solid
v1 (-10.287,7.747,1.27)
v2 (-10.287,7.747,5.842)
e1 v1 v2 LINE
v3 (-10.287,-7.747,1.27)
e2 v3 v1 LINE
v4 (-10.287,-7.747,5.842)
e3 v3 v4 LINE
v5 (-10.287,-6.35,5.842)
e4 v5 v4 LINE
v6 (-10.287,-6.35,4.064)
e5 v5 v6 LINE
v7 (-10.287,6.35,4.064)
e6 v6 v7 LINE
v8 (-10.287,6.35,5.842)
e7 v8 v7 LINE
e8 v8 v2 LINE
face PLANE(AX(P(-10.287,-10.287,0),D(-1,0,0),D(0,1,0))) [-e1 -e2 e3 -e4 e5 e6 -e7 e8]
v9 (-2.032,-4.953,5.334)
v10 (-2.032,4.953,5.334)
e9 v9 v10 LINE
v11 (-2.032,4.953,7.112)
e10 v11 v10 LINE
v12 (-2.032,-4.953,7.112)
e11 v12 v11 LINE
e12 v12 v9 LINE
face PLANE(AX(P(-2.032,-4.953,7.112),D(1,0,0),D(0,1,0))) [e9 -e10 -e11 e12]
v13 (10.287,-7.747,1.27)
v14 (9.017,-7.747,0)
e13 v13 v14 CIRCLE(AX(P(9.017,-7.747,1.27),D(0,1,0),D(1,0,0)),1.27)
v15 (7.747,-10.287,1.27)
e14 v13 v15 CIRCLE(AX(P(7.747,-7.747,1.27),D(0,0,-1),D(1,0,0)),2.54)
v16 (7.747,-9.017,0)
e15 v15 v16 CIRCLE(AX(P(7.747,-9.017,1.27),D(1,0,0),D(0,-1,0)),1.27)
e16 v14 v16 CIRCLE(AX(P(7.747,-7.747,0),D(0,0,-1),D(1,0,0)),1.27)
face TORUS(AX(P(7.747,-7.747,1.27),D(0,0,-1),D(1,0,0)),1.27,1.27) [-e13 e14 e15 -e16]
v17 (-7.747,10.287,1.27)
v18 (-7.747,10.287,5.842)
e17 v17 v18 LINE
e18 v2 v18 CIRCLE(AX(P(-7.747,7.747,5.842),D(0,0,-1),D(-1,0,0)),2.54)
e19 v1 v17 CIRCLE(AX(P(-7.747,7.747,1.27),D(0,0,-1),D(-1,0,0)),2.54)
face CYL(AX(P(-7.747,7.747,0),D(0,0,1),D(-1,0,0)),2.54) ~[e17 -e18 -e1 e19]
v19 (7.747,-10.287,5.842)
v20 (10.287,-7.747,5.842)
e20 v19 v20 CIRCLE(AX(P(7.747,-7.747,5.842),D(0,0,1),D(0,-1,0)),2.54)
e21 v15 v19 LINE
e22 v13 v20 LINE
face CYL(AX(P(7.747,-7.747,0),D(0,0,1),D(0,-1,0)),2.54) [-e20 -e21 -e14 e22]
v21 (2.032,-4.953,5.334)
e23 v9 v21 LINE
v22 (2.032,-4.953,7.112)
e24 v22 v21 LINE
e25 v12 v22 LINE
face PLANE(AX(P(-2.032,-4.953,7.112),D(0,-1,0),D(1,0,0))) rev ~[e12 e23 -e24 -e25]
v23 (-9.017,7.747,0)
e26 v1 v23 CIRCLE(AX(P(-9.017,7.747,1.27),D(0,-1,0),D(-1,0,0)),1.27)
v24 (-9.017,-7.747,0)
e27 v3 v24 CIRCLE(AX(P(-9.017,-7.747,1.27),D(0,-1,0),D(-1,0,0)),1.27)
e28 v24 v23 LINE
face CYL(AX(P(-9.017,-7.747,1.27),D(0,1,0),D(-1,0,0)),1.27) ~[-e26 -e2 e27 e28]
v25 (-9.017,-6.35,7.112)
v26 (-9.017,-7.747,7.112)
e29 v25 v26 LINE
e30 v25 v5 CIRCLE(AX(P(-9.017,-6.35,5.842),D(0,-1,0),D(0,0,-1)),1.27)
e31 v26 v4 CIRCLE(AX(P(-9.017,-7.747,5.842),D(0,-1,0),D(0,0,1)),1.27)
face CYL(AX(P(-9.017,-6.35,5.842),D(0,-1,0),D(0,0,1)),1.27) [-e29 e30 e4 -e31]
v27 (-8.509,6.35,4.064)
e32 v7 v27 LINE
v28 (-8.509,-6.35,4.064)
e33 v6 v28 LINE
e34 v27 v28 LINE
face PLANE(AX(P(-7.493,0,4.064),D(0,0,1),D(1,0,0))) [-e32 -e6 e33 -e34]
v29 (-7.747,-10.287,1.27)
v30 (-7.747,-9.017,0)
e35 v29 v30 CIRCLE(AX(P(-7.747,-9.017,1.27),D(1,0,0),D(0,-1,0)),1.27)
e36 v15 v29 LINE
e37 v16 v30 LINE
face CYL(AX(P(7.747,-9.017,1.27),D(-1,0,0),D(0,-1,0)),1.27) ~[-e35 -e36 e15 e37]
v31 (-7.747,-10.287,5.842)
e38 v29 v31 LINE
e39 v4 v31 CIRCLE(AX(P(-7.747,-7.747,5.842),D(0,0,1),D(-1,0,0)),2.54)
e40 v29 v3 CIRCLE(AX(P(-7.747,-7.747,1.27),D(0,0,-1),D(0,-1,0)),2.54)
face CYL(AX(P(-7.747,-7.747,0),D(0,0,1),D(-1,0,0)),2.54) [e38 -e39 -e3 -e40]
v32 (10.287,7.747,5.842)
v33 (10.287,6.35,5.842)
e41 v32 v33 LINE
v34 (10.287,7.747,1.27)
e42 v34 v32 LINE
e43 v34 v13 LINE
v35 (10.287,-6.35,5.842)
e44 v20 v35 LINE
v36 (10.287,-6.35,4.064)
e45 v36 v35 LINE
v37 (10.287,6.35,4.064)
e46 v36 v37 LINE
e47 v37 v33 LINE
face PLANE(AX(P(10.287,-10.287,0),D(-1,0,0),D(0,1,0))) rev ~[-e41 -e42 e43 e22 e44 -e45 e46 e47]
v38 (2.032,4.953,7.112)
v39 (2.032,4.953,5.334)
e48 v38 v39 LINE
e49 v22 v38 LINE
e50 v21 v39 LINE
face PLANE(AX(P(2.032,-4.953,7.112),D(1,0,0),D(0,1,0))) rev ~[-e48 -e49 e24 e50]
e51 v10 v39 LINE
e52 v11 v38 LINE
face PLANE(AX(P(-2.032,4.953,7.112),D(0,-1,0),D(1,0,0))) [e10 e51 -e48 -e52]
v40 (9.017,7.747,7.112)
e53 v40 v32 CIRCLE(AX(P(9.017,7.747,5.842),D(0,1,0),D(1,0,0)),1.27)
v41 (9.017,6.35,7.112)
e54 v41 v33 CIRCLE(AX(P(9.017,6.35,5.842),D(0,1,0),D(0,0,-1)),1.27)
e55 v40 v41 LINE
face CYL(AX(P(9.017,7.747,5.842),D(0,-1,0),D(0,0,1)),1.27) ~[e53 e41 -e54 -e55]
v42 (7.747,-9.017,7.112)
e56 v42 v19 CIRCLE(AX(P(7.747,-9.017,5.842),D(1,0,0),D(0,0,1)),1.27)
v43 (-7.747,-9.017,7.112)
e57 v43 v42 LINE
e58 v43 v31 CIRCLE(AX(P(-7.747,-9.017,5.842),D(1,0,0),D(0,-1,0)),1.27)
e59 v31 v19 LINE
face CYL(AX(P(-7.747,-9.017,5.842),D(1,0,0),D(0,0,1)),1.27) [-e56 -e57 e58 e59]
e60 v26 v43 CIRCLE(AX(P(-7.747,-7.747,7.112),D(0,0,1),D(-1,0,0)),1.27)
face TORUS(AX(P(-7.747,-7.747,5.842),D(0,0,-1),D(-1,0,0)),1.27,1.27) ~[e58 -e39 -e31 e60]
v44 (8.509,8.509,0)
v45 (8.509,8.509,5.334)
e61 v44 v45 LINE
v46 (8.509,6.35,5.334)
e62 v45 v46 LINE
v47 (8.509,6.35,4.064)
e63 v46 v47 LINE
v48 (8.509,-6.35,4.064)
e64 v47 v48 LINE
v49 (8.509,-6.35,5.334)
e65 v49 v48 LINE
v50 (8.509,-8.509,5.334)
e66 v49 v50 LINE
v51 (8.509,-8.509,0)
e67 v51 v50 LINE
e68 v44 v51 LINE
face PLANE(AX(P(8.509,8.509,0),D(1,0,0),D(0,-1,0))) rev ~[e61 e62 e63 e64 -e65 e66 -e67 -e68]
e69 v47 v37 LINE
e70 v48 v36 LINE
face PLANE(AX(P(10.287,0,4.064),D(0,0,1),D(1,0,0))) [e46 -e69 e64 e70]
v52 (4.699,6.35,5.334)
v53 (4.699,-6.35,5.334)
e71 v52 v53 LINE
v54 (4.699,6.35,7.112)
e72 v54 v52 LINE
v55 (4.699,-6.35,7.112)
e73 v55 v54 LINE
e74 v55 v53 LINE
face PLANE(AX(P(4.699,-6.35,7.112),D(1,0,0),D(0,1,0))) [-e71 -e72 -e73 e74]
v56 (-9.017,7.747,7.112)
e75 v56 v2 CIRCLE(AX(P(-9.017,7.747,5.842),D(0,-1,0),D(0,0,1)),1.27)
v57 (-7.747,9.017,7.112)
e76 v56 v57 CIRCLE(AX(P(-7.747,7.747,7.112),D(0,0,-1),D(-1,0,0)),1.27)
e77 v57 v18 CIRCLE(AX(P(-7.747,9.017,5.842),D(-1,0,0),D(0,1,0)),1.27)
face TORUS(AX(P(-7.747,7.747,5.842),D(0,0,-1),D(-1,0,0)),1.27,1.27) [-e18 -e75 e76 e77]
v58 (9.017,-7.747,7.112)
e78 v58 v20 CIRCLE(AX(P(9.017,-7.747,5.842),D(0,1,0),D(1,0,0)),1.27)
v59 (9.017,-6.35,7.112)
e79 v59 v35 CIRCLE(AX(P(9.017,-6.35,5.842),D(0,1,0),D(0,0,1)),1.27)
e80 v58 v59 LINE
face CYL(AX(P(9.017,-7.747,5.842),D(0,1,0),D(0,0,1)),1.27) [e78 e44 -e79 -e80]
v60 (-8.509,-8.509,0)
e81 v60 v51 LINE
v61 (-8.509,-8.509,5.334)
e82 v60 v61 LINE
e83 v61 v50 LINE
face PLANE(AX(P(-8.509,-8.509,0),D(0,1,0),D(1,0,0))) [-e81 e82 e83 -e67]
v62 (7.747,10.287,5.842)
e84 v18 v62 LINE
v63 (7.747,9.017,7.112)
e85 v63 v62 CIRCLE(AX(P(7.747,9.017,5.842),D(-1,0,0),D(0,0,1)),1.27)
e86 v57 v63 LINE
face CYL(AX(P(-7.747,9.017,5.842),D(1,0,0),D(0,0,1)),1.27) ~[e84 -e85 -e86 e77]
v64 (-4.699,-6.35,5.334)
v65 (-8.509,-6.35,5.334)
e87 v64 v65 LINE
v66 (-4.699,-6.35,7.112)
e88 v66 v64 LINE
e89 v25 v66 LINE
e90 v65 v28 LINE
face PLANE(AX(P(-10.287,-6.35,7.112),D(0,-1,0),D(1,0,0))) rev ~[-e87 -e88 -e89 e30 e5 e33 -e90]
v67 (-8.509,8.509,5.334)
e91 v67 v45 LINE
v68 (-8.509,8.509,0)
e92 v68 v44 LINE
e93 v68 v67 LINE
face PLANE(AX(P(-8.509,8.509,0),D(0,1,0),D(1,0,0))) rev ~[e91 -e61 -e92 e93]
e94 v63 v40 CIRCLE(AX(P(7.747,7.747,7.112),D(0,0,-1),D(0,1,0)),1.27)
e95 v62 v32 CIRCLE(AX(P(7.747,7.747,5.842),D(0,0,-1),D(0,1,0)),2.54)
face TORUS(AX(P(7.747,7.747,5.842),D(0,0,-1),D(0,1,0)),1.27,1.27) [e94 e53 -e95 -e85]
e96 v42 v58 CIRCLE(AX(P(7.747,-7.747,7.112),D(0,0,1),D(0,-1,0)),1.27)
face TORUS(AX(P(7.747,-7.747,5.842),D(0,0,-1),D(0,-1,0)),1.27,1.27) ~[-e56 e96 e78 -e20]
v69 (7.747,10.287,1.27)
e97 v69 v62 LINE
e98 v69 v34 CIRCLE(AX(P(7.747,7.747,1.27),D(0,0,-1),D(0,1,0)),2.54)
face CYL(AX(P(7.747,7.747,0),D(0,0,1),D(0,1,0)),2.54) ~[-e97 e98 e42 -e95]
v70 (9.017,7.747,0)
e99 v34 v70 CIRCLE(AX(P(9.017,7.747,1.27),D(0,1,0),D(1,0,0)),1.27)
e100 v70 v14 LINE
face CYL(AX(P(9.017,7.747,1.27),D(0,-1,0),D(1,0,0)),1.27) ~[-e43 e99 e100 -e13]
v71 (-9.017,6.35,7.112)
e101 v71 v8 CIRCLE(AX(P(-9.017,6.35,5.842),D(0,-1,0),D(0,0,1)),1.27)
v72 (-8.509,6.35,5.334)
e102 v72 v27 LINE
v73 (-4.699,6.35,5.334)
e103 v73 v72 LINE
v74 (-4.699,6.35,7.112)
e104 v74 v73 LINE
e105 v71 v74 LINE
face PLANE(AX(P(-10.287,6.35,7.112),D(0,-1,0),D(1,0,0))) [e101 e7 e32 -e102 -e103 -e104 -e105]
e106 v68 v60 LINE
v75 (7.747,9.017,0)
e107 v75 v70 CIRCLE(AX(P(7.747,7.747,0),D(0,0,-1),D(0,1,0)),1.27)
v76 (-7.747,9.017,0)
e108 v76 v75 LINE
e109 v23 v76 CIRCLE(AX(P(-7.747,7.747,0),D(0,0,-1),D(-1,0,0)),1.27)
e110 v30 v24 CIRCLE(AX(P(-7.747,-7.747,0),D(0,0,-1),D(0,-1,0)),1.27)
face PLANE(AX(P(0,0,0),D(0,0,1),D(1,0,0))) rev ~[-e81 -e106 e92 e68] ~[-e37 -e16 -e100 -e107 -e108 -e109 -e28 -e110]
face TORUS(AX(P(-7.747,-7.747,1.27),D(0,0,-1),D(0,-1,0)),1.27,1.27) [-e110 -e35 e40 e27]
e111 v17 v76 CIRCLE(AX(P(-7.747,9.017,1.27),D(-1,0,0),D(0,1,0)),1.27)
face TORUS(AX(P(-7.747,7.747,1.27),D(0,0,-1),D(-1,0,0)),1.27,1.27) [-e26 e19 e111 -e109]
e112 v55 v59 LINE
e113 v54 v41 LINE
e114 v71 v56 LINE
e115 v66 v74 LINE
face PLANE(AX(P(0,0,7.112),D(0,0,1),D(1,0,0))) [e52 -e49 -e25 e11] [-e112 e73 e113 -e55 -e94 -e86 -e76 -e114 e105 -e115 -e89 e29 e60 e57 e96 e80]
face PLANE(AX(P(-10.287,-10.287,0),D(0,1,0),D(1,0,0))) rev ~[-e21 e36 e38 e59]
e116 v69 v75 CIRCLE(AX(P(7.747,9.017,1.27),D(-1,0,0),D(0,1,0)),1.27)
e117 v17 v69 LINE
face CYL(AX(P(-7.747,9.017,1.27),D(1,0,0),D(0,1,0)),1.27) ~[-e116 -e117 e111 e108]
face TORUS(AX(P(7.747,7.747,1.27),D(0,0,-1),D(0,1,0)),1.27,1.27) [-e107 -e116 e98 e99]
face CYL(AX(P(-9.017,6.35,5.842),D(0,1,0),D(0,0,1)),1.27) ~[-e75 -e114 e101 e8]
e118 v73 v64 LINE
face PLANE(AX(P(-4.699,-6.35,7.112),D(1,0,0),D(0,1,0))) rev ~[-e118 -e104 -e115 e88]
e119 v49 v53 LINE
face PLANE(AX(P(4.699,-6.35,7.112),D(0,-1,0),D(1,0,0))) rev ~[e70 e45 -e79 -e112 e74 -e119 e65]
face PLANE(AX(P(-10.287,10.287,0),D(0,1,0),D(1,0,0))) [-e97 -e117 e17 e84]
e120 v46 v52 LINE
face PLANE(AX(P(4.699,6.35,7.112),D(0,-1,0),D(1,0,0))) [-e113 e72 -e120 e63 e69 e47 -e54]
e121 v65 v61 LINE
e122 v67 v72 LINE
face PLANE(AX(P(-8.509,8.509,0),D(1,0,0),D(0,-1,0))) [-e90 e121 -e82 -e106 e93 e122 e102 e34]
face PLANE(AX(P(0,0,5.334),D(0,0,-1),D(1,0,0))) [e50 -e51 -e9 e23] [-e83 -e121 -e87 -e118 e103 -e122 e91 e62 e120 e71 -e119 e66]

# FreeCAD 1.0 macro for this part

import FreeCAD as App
import Part
import Sketcher
Q = App.Units.Quantity


def edges_at(feature, points):
    """Names of the edges that pass closest to the given points."""
    edges = feature.Shape.Edges
    near = lambda p: min(range(len(edges)), key=lambda i: edges[i].distToShape(Part.Vertex(*p))[0])
    return sorted({f"Edge{near(p) + 1}" for p in points})

doc = App.newDocument("Part")
body = doc.addObject("PartDesign::Body", "Body")

# Sketch on XY plane
sketch1 = doc.addObject("Sketcher::SketchObject", "Sketch")
body.addObject(sketch1)
sketch1.AttachmentSupport = (doc.XY_Plane, [""])
sketch1.MapMode = "FlatFace"
sketch1.addGeometry(Part.LineSegment(App.Vector(-10, 10, 0), App.Vector(-10, -10, 0)), False)
sketch1.addGeometry(Part.LineSegment(App.Vector(-10, -10, 0), App.Vector(10, -10, 0)), False)
sketch1.addGeometry(Part.LineSegment(App.Vector(10, -10, 0), App.Vector(10, 10, 0)), False)
sketch1.addGeometry(Part.LineSegment(App.Vector(10, 10, 0), App.Vector(-10, 10, 0)), False)
sketch1.addConstraint(Sketcher.Constraint("Coincident", 0, 2, 1, 1))
sketch1.addConstraint(Sketcher.Constraint("Coincident", 1, 2, 2, 1))
sketch1.addConstraint(Sketcher.Constraint("Coincident", 2, 2, 3, 1))
sketch1.addConstraint(Sketcher.Constraint("Coincident", 3, 2, 0, 1))
sketch1.addConstraint(Sketcher.Constraint("Vertical", 0))
sketch1.addConstraint(Sketcher.Constraint("Horizontal", 1))
sketch1.addConstraint(Sketcher.Constraint("Vertical", 2))
sketch1.addConstraint(Sketcher.Constraint("Horizontal", 3))
sketch1.addConstraint(Sketcher.Constraint("Symmetric", 0, 2, 2, 2, -1, 1))
sketch1.addConstraint(Sketcher.Constraint("Equal", 3, 0))
sketch1.addConstraint(Sketcher.Constraint("DistanceX", 1, 1, 1, 2, Q("0.81 in")))
pad1 = doc.addObject("PartDesign::Pad", "Pad")
body.addObject(pad1)
pad1.Profile = sketch1
pad1.Length = Q("0.28 in")

# Sketch on XY plane
sketch2 = doc.addObject("Sketcher::SketchObject", "Sketch001")
body.addObject(sketch2)
sketch2.AttachmentSupport = (doc.XY_Plane, [""])
sketch2.MapMode = "FlatFace"
sketch2.addGeometry(Part.LineSegment(App.Vector(-9, -9, 0), App.Vector(-9, 9, 0)), False)
sketch2.addGeometry(Part.LineSegment(App.Vector(-9, 9, 0), App.Vector(9, 9, 0)), False)
sketch2.addGeometry(Part.LineSegment(App.Vector(9, 9, 0), App.Vector(9, -9, 0)), False)
sketch2.addGeometry(Part.LineSegment(App.Vector(9, -9, 0), App.Vector(-9, -9, 0)), False)
sketch2.addConstraint(Sketcher.Constraint("Coincident", 0, 2, 1, 1))
sketch2.addConstraint(Sketcher.Constraint("Coincident", 1, 2, 2, 1))
sketch2.addConstraint(Sketcher.Constraint("Coincident", 2, 2, 3, 1))
sketch2.addConstraint(Sketcher.Constraint("Coincident", 3, 2, 0, 1))
sketch2.addConstraint(Sketcher.Constraint("Vertical", 0))
sketch2.addConstraint(Sketcher.Constraint("Horizontal", 1))
sketch2.addConstraint(Sketcher.Constraint("Vertical", 2))
sketch2.addConstraint(Sketcher.Constraint("Horizontal", 3))
sketch2.addConstraint(Sketcher.Constraint("Symmetric", 0, 2, 2, 2, -1, 1))
sketch2.addConstraint(Sketcher.Constraint("Equal", 3, 0))
sketch2.addConstraint(Sketcher.Constraint("DistanceX", 1, 1, 1, 2, Q("0.67 in")))
pocket1 = doc.addObject("PartDesign::Pocket", "Pocket")
body.addObject(pocket1)
pocket1.Profile = sketch2
pocket1.Length = Q("0.21 in")
pocket1.Reversed = True
doc.recompute()

fillet = doc.addObject("PartDesign::Fillet", "Fillet")
body.addObject(fillet)
fillet.Base = (pocket1, edges_at(pocket1, [
    (-10.287, -10.287, 3.556),
    (10.287, 10.287, 3.556),
    (10.287, -10.287, 3.556),
    (-10.287, 10.287, 3.556),
]))
fillet.Radius = Q("0.1 in")

# Sketch on XY plane
sketch3 = doc.addObject("Sketcher::SketchObject", "Sketch002")
body.addObject(sketch3)
sketch3.AttachmentSupport = (doc.XY_Plane, [""])
sketch3.MapMode = "FlatFace"
sketch3.AttachmentOffset = App.Placement(App.Vector(0, 0, 0.28 * 25.4), App.Rotation())
sketch3.addGeometry(Part.LineSegment(App.Vector(-10, 6, 0), App.Vector(-10, -6, 0)), False)
sketch3.addGeometry(Part.LineSegment(App.Vector(-10, -6, 0), App.Vector(-5, -6, 0)), False)
sketch3.addGeometry(Part.LineSegment(App.Vector(-5, -6, 0), App.Vector(-5, 6, 0)), False)
sketch3.addGeometry(Part.LineSegment(App.Vector(-5, 6, 0), App.Vector(-10, 6, 0)), False)
sketch3.addConstraint(Sketcher.Constraint("Coincident", 0, 2, 1, 1))
sketch3.addConstraint(Sketcher.Constraint("Coincident", 1, 2, 2, 1))
sketch3.addConstraint(Sketcher.Constraint("Coincident", 2, 2, 3, 1))
sketch3.addConstraint(Sketcher.Constraint("Coincident", 3, 2, 0, 1))
sketch3.addConstraint(Sketcher.Constraint("Vertical", 0))
sketch3.addConstraint(Sketcher.Constraint("Horizontal", 1))
sketch3.addConstraint(Sketcher.Constraint("Vertical", 2))
sketch3.addConstraint(Sketcher.Constraint("Horizontal", 3))
sketch3.addConstraint(Sketcher.Constraint("DistanceY", 0, 2, 0, 1, Q("0.5 in")))
sketch3.addConstraint(Sketcher.Constraint("DistanceX", 1, 1, 1, 2, Q("0.22 in")))
sketch3.addConstraint(Sketcher.Constraint("DistanceY", 0, 2, -1, 1, Q("0.25 in")))
sketch3.addConstraint(Sketcher.Constraint("DistanceX", 0, 2, -1, 1, Q("0.405 in")))
pocket2 = doc.addObject("PartDesign::Pocket", "Pocket001")
body.addObject(pocket2)
pocket2.Profile = sketch3
pocket2.Length = Q("0.12 in")

# Sketch on XY plane
sketch4 = doc.addObject("Sketcher::SketchObject", "Sketch003")
body.addObject(sketch4)
sketch4.AttachmentSupport = (doc.XY_Plane, [""])
sketch4.MapMode = "FlatFace"
sketch4.AttachmentOffset = App.Placement(App.Vector(0, 0, 0.28 * 25.4), App.Rotation())
sketch4.addGeometry(Part.LineSegment(App.Vector(5, 6, 0), App.Vector(5, -6, 0)), False)
sketch4.addGeometry(Part.LineSegment(App.Vector(5, -6, 0), App.Vector(16, -6, 0)), False)
sketch4.addGeometry(Part.LineSegment(App.Vector(16, -6, 0), App.Vector(16, 6, 0)), False)
sketch4.addGeometry(Part.LineSegment(App.Vector(16, 6, 0), App.Vector(5, 6, 0)), False)
sketch4.addConstraint(Sketcher.Constraint("Coincident", 0, 2, 1, 1))
sketch4.addConstraint(Sketcher.Constraint("Coincident", 1, 2, 2, 1))
sketch4.addConstraint(Sketcher.Constraint("Coincident", 2, 2, 3, 1))
sketch4.addConstraint(Sketcher.Constraint("Coincident", 3, 2, 0, 1))
sketch4.addConstraint(Sketcher.Constraint("Vertical", 0))
sketch4.addConstraint(Sketcher.Constraint("Horizontal", 1))
sketch4.addConstraint(Sketcher.Constraint("Vertical", 2))
sketch4.addConstraint(Sketcher.Constraint("Horizontal", 3))
sketch4.addConstraint(Sketcher.Constraint("DistanceY", 0, 2, 0, 1, Q("0.5 in")))
sketch4.addConstraint(Sketcher.Constraint("DistanceX", 1, 1, 1, 2, Q("0.44 in")))
sketch4.addConstraint(Sketcher.Constraint("DistanceY", 0, 2, -1, 1, Q("0.25 in")))
sketch4.addConstraint(Sketcher.Constraint("DistanceX", -1, 1, 0, 2, Q("0.185 in")))
pocket3 = doc.addObject("PartDesign::Pocket", "Pocket002")
body.addObject(pocket3)
pocket3.Profile = sketch4
pocket3.Length = Q("0.12 in")

# Sketch on XY plane
sketch5 = doc.addObject("Sketcher::SketchObject", "Sketch004")
body.addObject(sketch5)
sketch5.AttachmentSupport = (doc.XY_Plane, [""])
sketch5.MapMode = "FlatFace"
sketch5.AttachmentOffset = App.Placement(App.Vector(0, 0, 0.28 * 25.4), App.Rotation())
sketch5.addGeometry(Part.LineSegment(App.Vector(-2, 5, 0), App.Vector(-2, -5, 0)), False)
sketch5.addGeometry(Part.LineSegment(App.Vector(-2, -5, 0), App.Vector(2, -5, 0)), False)
sketch5.addGeometry(Part.LineSegment(App.Vector(2, -5, 0), App.Vector(2, 5, 0)), False)
sketch5.addGeometry(Part.LineSegment(App.Vector(2, 5, 0), App.Vector(-2, 5, 0)), False)
sketch5.addConstraint(Sketcher.Constraint("Coincident", 0, 2, 1, 1))
sketch5.addConstraint(Sketcher.Constraint("Coincident", 1, 2, 2, 1))
sketch5.addConstraint(Sketcher.Constraint("Coincident", 2, 2, 3, 1))
sketch5.addConstraint(Sketcher.Constraint("Coincident", 3, 2, 0, 1))
sketch5.addConstraint(Sketcher.Constraint("Vertical", 0))
sketch5.addConstraint(Sketcher.Constraint("Horizontal", 1))
sketch5.addConstraint(Sketcher.Constraint("Vertical", 2))
sketch5.addConstraint(Sketcher.Constraint("Horizontal", 3))
sketch5.addConstraint(Sketcher.Constraint("Symmetric", 0, 2, 2, 2, -1, 1))
sketch5.addConstraint(Sketcher.Constraint("DistanceX", 1, 1, 1, 2, Q("0.16 in")))
sketch5.addConstraint(Sketcher.Constraint("DistanceY", 0, 2, 0, 1, Q("0.39 in")))
pocket4 = doc.addObject("PartDesign::Pocket", "Pocket003")
body.addObject(pocket4)
pocket4.Profile = sketch5
pocket4.Length = Q("0.07 in")
doc.recompute()

fillet2 = doc.addObject("PartDesign::Fillet", "Fillet001")
body.addObject(fillet2)
fillet2.Base = (pocket4, edges_at(pocket4, [(0, 10.287, 7.112), (0, -10.287, 7.112)]))
fillet2.Radius = Q("0.05 in")
doc.recompute()

fillet3 = doc.addObject("PartDesign::Fillet", "Fillet002")
body.addObject(fillet3)
fillet3.Base = (fillet2, edges_at(fillet2, [(-10.287, 0, 0), (0, 10.287, 0), (-9.543, 9.543, 0)]))
fillet3.Radius = Q("0.05 in")

doc.recompute()
